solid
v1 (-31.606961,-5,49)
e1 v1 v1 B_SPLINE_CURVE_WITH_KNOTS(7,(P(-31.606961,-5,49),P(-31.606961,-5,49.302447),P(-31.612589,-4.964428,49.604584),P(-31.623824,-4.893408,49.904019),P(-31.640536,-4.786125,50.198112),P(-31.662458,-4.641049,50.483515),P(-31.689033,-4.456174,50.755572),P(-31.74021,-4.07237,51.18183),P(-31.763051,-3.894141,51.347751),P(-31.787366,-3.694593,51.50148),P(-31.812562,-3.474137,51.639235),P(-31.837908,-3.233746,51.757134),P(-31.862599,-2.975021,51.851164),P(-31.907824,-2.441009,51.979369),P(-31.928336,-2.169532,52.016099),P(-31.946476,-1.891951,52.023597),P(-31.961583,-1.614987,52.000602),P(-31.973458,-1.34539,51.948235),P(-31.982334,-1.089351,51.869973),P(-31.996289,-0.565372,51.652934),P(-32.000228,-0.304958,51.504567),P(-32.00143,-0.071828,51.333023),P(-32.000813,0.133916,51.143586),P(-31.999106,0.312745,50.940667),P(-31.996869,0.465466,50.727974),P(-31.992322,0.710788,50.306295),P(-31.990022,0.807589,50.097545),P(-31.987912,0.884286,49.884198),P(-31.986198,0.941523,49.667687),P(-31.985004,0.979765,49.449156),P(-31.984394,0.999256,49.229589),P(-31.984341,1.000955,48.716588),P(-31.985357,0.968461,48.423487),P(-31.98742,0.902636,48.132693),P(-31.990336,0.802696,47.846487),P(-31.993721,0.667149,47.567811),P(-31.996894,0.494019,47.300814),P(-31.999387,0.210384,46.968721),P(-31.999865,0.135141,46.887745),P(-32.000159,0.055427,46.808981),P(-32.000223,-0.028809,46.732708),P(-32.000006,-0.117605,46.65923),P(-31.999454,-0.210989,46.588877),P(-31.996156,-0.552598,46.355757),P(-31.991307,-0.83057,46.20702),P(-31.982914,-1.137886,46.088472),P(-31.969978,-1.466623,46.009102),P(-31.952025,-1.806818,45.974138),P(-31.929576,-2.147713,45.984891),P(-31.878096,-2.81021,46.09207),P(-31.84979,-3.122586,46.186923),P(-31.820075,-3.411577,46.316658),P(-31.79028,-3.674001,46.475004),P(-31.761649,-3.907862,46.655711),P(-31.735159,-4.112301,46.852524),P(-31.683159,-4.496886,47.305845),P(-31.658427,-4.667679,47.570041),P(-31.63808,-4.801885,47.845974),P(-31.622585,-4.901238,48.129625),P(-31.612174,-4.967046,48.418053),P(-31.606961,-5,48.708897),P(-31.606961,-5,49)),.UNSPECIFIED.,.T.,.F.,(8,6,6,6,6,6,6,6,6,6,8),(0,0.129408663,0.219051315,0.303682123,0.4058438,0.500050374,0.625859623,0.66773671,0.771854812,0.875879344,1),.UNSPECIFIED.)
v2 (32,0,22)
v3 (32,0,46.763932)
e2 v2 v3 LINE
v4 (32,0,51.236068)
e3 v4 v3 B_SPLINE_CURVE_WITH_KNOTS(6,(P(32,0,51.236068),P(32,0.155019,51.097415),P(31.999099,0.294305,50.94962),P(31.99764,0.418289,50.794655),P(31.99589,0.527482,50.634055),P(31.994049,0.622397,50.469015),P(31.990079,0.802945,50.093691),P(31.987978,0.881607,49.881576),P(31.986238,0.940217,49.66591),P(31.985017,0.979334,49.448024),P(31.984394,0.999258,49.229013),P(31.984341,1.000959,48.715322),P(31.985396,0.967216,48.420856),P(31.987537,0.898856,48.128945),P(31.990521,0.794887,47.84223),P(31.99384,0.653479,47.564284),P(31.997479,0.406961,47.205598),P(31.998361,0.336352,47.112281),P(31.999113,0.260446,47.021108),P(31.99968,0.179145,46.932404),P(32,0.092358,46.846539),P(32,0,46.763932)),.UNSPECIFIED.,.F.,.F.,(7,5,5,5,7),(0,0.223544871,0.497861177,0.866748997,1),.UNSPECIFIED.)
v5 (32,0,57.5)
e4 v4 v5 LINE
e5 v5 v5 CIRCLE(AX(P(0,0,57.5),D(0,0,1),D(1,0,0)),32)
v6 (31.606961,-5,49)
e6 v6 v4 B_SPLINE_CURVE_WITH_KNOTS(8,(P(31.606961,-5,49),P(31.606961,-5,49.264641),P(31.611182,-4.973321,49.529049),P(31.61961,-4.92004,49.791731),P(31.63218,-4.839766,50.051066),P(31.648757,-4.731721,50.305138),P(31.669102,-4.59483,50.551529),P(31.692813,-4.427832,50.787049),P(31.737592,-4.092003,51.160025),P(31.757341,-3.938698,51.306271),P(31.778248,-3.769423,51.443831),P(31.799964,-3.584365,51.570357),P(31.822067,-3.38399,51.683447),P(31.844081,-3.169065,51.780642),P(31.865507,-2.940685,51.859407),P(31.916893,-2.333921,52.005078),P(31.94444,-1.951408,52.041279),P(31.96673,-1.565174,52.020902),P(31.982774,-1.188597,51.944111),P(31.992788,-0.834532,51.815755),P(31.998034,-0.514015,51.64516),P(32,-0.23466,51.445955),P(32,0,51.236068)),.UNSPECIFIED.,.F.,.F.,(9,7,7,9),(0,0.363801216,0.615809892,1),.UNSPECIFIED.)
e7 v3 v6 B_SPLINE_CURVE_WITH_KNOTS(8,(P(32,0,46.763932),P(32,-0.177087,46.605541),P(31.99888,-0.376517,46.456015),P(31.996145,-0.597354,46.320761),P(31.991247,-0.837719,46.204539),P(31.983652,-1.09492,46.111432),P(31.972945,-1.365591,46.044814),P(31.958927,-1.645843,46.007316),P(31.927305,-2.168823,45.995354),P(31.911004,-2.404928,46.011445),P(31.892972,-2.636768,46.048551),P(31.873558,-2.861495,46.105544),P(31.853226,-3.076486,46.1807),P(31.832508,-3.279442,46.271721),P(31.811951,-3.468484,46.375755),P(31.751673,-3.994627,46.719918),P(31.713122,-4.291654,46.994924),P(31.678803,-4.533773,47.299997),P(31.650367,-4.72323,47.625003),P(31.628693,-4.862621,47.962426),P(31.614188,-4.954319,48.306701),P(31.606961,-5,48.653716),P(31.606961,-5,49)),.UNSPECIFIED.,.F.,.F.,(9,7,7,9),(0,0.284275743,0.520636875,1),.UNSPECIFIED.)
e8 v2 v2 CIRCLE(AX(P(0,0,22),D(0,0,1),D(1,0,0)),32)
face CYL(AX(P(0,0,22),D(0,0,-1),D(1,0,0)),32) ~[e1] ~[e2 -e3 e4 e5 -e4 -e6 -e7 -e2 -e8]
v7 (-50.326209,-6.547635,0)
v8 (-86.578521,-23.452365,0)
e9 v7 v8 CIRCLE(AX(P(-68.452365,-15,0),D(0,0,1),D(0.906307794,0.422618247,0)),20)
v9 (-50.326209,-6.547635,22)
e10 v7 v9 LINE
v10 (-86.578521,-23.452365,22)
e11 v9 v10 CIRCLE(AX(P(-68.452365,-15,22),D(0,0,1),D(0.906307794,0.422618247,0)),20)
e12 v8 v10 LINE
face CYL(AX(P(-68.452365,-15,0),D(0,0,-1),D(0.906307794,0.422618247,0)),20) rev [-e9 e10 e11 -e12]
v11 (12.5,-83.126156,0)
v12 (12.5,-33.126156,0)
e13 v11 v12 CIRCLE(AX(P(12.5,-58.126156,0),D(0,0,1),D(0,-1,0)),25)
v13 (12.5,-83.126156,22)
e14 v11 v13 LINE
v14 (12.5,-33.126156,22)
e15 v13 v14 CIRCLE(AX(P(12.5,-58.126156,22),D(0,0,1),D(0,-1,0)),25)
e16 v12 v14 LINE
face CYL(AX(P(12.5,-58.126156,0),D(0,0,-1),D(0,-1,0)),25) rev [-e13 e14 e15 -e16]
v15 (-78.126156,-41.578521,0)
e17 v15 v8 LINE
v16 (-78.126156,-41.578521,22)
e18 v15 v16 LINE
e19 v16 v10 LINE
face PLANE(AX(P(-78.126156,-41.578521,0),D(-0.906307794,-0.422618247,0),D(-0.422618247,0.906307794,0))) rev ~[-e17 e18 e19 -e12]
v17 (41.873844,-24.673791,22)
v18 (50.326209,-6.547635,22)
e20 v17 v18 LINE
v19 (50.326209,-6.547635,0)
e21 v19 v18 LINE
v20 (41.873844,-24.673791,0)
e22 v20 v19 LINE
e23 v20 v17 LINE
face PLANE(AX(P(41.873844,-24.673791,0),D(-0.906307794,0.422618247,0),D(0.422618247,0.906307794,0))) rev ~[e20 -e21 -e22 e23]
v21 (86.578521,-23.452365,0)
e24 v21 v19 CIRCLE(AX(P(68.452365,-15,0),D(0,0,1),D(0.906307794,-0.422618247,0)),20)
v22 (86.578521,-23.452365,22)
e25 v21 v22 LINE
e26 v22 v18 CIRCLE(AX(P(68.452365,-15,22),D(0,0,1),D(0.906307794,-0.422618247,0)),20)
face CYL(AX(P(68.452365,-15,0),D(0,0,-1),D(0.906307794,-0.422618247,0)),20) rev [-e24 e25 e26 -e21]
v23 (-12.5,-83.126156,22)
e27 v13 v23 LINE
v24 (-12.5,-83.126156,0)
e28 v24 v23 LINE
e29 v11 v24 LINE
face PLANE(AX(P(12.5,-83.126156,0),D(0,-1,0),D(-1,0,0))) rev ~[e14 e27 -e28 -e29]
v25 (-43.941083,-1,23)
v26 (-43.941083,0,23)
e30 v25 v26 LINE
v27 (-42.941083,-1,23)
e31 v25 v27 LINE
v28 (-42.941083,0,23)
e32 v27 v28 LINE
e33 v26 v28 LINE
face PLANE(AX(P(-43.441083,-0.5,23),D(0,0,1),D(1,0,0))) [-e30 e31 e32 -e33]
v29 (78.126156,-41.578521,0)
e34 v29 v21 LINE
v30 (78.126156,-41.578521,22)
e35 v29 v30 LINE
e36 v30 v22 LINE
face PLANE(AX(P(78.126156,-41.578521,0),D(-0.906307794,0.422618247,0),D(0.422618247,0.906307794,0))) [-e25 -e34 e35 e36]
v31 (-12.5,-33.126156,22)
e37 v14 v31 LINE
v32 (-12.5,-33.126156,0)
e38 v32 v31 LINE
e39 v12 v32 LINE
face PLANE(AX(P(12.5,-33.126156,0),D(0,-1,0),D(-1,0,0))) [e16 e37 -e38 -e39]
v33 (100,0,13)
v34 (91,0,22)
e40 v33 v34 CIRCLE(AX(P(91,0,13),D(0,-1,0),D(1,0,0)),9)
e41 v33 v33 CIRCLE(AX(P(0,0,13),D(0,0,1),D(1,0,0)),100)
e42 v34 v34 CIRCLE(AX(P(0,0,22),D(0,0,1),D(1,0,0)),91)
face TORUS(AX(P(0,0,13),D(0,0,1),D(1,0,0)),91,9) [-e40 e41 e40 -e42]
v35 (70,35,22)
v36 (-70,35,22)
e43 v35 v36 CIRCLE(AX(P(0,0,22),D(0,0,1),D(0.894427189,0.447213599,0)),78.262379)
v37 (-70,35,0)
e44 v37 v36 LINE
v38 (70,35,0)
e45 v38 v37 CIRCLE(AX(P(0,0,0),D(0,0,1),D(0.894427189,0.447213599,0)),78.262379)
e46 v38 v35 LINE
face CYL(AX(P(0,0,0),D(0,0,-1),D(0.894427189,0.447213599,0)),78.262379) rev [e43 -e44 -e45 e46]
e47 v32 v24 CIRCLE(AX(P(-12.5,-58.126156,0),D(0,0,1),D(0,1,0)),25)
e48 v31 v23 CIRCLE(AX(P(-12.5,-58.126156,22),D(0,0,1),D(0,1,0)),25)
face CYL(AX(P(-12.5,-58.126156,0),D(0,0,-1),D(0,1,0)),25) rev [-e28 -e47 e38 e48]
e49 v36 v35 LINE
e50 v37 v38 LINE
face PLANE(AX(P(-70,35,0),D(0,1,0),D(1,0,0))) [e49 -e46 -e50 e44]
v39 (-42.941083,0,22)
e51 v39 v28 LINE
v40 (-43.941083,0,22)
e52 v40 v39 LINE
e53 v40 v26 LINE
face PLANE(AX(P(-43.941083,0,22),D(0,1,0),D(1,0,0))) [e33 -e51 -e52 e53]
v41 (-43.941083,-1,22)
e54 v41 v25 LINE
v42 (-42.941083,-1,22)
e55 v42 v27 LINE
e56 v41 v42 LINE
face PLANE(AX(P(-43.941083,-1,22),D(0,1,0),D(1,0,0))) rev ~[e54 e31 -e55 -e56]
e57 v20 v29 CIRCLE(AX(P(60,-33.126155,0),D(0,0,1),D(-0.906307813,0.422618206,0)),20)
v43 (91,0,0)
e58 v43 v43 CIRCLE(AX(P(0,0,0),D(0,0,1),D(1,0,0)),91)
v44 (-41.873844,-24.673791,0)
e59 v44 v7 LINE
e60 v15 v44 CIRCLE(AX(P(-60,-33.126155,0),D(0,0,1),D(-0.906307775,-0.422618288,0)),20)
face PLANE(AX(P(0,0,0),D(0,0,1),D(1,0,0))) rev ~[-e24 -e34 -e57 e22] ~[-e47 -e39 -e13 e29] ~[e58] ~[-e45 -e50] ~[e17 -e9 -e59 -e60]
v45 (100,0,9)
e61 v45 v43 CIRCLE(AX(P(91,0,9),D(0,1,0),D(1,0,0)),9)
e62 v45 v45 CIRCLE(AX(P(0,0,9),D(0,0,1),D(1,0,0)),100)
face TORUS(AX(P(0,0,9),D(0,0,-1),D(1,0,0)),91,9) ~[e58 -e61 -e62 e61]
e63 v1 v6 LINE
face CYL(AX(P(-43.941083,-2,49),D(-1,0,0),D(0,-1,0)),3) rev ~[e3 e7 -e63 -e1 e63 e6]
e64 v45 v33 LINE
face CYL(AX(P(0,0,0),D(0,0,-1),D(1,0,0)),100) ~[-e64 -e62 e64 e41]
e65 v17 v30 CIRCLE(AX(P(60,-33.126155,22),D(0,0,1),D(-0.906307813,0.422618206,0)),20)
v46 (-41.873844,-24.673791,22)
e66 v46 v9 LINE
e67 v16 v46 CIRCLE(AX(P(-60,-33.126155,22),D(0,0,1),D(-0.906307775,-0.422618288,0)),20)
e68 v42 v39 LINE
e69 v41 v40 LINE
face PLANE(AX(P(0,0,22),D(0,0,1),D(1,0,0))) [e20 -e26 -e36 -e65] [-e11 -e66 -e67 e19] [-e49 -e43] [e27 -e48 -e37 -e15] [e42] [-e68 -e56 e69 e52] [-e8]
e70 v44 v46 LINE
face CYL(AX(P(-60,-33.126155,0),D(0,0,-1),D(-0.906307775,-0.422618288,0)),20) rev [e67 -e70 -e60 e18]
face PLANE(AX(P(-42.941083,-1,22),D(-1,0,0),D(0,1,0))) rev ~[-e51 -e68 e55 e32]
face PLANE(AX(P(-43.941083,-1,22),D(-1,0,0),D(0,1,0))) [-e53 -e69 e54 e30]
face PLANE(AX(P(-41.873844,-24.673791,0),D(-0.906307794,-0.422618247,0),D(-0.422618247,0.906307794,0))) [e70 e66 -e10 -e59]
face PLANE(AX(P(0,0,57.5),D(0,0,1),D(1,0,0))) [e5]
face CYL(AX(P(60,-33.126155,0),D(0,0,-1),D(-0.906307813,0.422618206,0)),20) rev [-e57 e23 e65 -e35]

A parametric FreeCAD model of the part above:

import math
import FreeCAD as App
import Part
import Sketcher
Q = App.Units.Quantity


def edges_at(feature, points):
    """Names of the edges that pass closest to the given points."""
    edges = feature.Shape.Edges
    near = lambda p: min(range(len(edges)), key=lambda i: edges[i].distToShape(Part.Vertex(*p))[0])
    return sorted({f"Edge{near(p) + 1}" for p in points})

doc = App.newDocument("Part")
params = doc.addObject("Spreadsheet::Sheet", "Params")
for row, (alias, value) in enumerate([
    ("sketch1_diameter", "200 mm"),
    ("sketch1_radius", "20 mm"),
    ("sketch1_radius2", "25 mm"),
    ("sketch1_width", "25 mm"),
    ("sketch1_width2", "140 mm"),
    ("pad1_length", "22 mm"),
    ("sketch2_diameter", "64 mm"),
    ("pad2_length", "35.5 mm"),
    ("sketch3_width", "1 mm"),
    ("pad3_length", "1 mm"),
    ("sketch4_diameter", "6 mm"),
    ("fillet_radius", "9 mm"),
], start=1):
    params.set(f"A{row}", alias)
    params.set(f"B{row}", "=" + value)
    params.setAlias(f"B{row}", alias)

body = doc.addObject("PartDesign::Body", "Body")

# Sketch on XY plane
sketch1 = doc.addObject("Sketcher::SketchObject", "Sketch")
body.addObject(sketch1)
sketch1.AttachmentSupport = (doc.XY_Plane, [""])
sketch1.MapMode = "FlatFace"
sketch1.addGeometry([
    Part.Circle(App.Vector(0, 0, 0), App.Vector(0, 0, 1), 100),  # 0
    Part.ArcOfCircle(Part.Circle(App.Vector(-60, -33, 0), App.Vector(0, 0, 1), 20), math.radians(-155), math.radians(25)),  # 1
    Part.LineSegment(App.Vector(-78, -42, 0), App.Vector(-87, -23, 0)),  # 2
    Part.ArcOfCircle(Part.Circle(App.Vector(-68, -15, 0), App.Vector(0, 0, 1), 20), math.radians(25), math.radians(205)),  # 3
    Part.LineSegment(App.Vector(-50, -7, 0), App.Vector(-42, -25, 0)),  # 4
    Part.LineSegment(App.Vector(-12, -33, 0), App.Vector(12, -33, 0)),  # 5
    Part.ArcOfCircle(Part.Circle(App.Vector(12, -58, 0), App.Vector(0, 0, 1), 25), math.radians(-90), math.radians(90)),  # 6
    Part.LineSegment(App.Vector(12, -83, 0), App.Vector(-12, -83, 0)),  # 7
    Part.ArcOfCircle(Part.Circle(App.Vector(-12, -58, 0), App.Vector(0, 0, 1), 25), math.radians(90), math.radians(270)),  # 8
    Part.ArcOfCircle(Part.Circle(App.Vector(60, -33, 0), App.Vector(0, 0, 1), 20), math.radians(155), math.radians(335)),  # 9
    Part.LineSegment(App.Vector(42, -25, 0), App.Vector(50, -7, 0)),  # 10
    Part.ArcOfCircle(Part.Circle(App.Vector(68, -15, 0), App.Vector(0, 0, 1), 20), math.radians(-25), math.radians(155)),  # 11
    Part.LineSegment(App.Vector(87, -23, 0), App.Vector(78, -42, 0)),  # 12
    Part.LineSegment(App.Vector(70, 35, 0), App.Vector(-70, 35, 0)),  # 13
    Part.ArcOfCircle(Part.Circle(App.Vector(0, 0, 0), App.Vector(0, 0, 1), 78), math.radians(27), math.radians(153)),  # 14
], False)
sketch1.addConstraint([
    Sketcher.Constraint("Tangent", 1, 1, 2, 1),
    Sketcher.Constraint("Tangent", 2, 2, 3, 2),
    Sketcher.Constraint("Tangent", 3, 1, 4, 1),
    Sketcher.Constraint("Tangent", 4, 2, 1, 2),
    Sketcher.Constraint("Tangent", 5, 2, 6, 2),
    Sketcher.Constraint("Tangent", 6, 1, 7, 1),
    Sketcher.Constraint("Tangent", 7, 2, 8, 2),
    Sketcher.Constraint("Tangent", 8, 1, 5, 1),
    Sketcher.Constraint("Tangent", 9, 1, 10, 1),
    Sketcher.Constraint("Tangent", 10, 2, 11, 2),
    Sketcher.Constraint("Tangent", 11, 1, 12, 1),
    Sketcher.Constraint("Tangent", 12, 2, 9, 2),
    Sketcher.Constraint("Coincident", 13, 1, 14, 1),
    Sketcher.Constraint("Coincident", 14, 2, 13, 2),
    Sketcher.Constraint("Horizontal", 5),
    Sketcher.Constraint("Horizontal", 7),
    Sketcher.Constraint("Horizontal", 13),
    Sketcher.Constraint("Coincident", 0, 3, -1, 1),
    Sketcher.Constraint("Coincident", 14, 3, -1, 1),
    Sketcher.Constraint("Equal", 1, 3),
    Sketcher.Constraint("Equal", 3, 9),
    Sketcher.Constraint("Equal", 9, 11),
    Sketcher.Constraint("Symmetric", 1, 3, 9, 3, -2),
    Sketcher.Constraint("Symmetric", 3, 3, 11, 3, -2),
    Sketcher.Constraint("Horizontal", 9, 3, 5, 2),
    Sketcher.Constraint("Diameter", 0, Q("200 mm")),
    Sketcher.Constraint("Radius", 1, Q("20 mm")),
    Sketcher.Constraint("Radius", 6, Q("25 mm")),
    Sketcher.Constraint("DistanceX", 5, 1, 5, 2, Q("25 mm")),
    Sketcher.Constraint("DistanceX", 13, 2, 13, 1, Q("140 mm")),
    Sketcher.Constraint("Angle", 2, Q("114.999999 deg")),
    Sketcher.Constraint("Distance", 2, Q("20 mm")),
    Sketcher.Constraint("DistanceX", 1, 3, -1, 1, Q("60 mm")),
    Sketcher.Constraint("DistanceY", 3, 3, -1, 1, Q("15 mm")),
    Sketcher.Constraint("DistanceY", -1, 1, 13, 1, Q("35 mm")),
    Sketcher.Constraint("DistanceX", -1, 1, 6, 3, Q("12.5 mm")),
])
sketch1.setExpression("Constraints[25]", "Params.sketch1_diameter")
sketch1.setExpression("Constraints[26]", "Params.sketch1_radius")
sketch1.setExpression("Constraints[27]", "Params.sketch1_radius2")
sketch1.setExpression("Constraints[28]", "Params.sketch1_width")
sketch1.setExpression("Constraints[29]", "Params.sketch1_width2")
pad1 = doc.addObject("PartDesign::Pad", "Pad")
body.addObject(pad1)
pad1.Profile = sketch1
pad1.setExpression("Length", "Params.pad1_length")

# Sketch on XY plane
sketch2 = doc.addObject("Sketcher::SketchObject", "Sketch001")
body.addObject(sketch2)
sketch2.AttachmentSupport = (doc.XY_Plane, [""])
sketch2.MapMode = "FlatFace"
sketch2.AttachmentOffset = App.Placement(App.Vector(0, 0, 22), App.Rotation())
sketch2.addGeometry(Part.Circle(App.Vector(0, 0, 0), App.Vector(0, 0, 1), 32), False)
sketch2.addConstraint([
    Sketcher.Constraint("Coincident", 0, 3, -1, 1),
    Sketcher.Constraint("Diameter", 0, Q("64 mm")),
])
sketch2.setExpression("Constraints[1]", "Params.sketch2_diameter")
pad2 = doc.addObject("PartDesign::Pad", "Pad001")
body.addObject(pad2)
pad2.Profile = sketch2
pad2.setExpression("Length", "Params.pad2_length")

# Sketch on XY plane
sketch3 = doc.addObject("Sketcher::SketchObject", "Sketch002")
body.addObject(sketch3)
sketch3.AttachmentSupport = (doc.XY_Plane, [""])
sketch3.MapMode = "FlatFace"
sketch3.AttachmentOffset = App.Placement(App.Vector(0, 0, 22), App.Rotation())
sketch3.addGeometry([
    Part.LineSegment(App.Vector(-43.9, 0, 0), App.Vector(-43.9, -1, 0)),
    Part.LineSegment(App.Vector(-43.9, -1, 0), App.Vector(-42.9, -1, 0)),
    Part.LineSegment(App.Vector(-42.9, -1, 0), App.Vector(-42.9, 0, 0)),
    Part.LineSegment(App.Vector(-42.9, 0, 0), App.Vector(-43.9, 0, 0)),
], False)
sketch3.addConstraint([
    Sketcher.Constraint("Coincident", 0, 2, 1, 1),
    Sketcher.Constraint("Coincident", 1, 2, 2, 1),
    Sketcher.Constraint("Coincident", 2, 2, 3, 1),
    Sketcher.Constraint("Coincident", 3, 2, 0, 1),
    Sketcher.Constraint("Vertical", 0),
    Sketcher.Constraint("Horizontal", 1),
    Sketcher.Constraint("Vertical", 2),
    Sketcher.Constraint("Horizontal", 3),
    Sketcher.Constraint("PointOnObject", 2, 2, -1),
    Sketcher.Constraint("Equal", 3, 0),
    Sketcher.Constraint("DistanceX", 1, 1, 1, 2, Q("1 mm")),
    Sketcher.Constraint("DistanceX", 0, 2, -1, 1, Q("43.941083 mm")),
])
sketch3.setExpression("Constraints[10]", "Params.sketch3_width")
pad3 = doc.addObject("PartDesign::Pad", "Pad002")
body.addObject(pad3)
pad3.Profile = sketch3
pad3.setExpression("Length", "Params.pad3_length")

# Sketch on YZ plane
sketch4 = doc.addObject("Sketcher::SketchObject", "Sketch003")
body.addObject(sketch4)
sketch4.AttachmentSupport = (doc.YZ_Plane, [""])
sketch4.MapMode = "FlatFace"
sketch4.AttachmentOffset = App.Placement(App.Vector(0, 0, -43.941083), App.Rotation())
sketch4.addGeometry(Part.Circle(App.Vector(-2, 49, 0), App.Vector(0, 0, 1), 3), False)
sketch4.addConstraint([
    Sketcher.Constraint("Diameter", 0, Q("6 mm")),
    Sketcher.Constraint("DistanceX", 0, 3, -1, 1, Q("2 mm")),
    Sketcher.Constraint("DistanceY", -1, 1, 0, 3, Q("49 mm")),
])
sketch4.setExpression("Constraints[0]", "Params.sketch4_diameter")
pocket1 = doc.addObject("PartDesign::Pocket", "Pocket")
body.addObject(pocket1)
pocket1.Profile = sketch4
pocket1.Type = "ThroughAll"
pocket1.Reversed = True
doc.recompute()

fillet = doc.addObject("PartDesign::Fillet", "Fillet")
body.addObject(fillet)
fillet.Base = (pocket1, edges_at(pocket1, [(-100, 0, 22), (-100, 0, 0)]))
fillet.setExpression("Radius", "Params.fillet_radius")

doc.recompute()
